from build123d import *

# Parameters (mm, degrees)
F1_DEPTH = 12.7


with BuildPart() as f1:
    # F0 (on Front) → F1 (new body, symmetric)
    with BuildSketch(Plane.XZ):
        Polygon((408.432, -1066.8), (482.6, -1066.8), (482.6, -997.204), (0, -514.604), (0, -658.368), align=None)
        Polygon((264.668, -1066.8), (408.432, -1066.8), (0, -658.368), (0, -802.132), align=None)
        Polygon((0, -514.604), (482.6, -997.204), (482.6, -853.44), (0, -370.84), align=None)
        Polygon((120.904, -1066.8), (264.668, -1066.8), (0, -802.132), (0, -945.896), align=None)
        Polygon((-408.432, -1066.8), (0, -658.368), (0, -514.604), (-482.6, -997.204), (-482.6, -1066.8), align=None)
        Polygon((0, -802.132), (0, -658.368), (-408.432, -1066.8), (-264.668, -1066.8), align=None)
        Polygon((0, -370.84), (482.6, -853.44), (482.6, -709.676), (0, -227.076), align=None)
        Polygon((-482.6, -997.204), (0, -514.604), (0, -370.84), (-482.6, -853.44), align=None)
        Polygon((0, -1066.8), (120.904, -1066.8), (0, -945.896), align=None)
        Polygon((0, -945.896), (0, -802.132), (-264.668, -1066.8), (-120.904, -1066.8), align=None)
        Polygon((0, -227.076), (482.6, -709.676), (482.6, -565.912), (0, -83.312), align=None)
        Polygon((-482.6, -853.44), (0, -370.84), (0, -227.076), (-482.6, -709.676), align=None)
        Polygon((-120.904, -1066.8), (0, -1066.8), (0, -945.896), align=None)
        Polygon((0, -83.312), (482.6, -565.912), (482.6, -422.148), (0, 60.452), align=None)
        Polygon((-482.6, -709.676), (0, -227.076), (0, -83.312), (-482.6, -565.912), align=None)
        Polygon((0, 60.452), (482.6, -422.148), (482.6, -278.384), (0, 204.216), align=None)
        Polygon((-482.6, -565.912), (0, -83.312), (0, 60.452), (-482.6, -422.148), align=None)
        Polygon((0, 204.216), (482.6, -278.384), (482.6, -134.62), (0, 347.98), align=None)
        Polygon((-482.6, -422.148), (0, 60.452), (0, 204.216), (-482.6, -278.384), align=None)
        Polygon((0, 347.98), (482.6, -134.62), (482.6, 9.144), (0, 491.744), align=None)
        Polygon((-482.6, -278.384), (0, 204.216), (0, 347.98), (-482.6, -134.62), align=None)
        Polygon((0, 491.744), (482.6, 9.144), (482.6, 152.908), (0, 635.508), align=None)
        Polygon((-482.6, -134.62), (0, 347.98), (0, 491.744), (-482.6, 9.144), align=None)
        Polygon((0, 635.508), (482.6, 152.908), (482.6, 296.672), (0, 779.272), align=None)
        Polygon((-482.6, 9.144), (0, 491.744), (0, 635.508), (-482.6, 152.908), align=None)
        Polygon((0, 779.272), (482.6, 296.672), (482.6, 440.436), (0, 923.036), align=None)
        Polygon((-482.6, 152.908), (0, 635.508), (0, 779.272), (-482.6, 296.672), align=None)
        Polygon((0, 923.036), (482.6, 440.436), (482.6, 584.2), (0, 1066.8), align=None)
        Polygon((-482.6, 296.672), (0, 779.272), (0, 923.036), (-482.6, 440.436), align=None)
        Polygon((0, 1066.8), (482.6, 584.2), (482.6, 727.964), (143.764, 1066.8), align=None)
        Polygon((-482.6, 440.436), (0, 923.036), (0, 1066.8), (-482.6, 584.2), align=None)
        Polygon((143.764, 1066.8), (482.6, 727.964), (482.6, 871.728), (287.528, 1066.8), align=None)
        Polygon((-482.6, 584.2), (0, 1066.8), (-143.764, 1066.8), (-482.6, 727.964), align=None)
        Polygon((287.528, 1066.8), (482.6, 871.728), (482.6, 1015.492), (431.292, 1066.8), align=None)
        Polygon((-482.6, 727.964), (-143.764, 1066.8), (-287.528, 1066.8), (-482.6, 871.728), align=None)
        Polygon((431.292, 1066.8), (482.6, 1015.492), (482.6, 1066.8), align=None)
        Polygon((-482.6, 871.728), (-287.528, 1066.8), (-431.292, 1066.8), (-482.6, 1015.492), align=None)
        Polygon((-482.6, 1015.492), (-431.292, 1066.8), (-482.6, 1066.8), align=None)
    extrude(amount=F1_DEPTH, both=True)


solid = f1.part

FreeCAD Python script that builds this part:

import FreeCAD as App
import Part
import Sketcher
from FreeCAD import Vector
Q = App.Units.Quantity

doc = App.newDocument("Part")
body = doc.addObject("PartDesign::Body", "Body")

# Sketch on XZ plane
sketch1 = doc.addObject("Sketcher::SketchObject", "Sketch")
body.addObject(sketch1)
sketch1.AttachmentSupport = (doc.XZ_Plane, [""])
sketch1.MapMode = "FlatFace"
sketch1.addGeometry([
    Part.LineSegment(Vector(483, -1067, 0), Vector(483, 1067, 0)),
    Part.LineSegment(Vector(483, 1067, 0), Vector(-483, 1067, 0)),
    Part.LineSegment(Vector(-483, 1067, 0), Vector(-483, -1067, 0)),
    Part.LineSegment(Vector(-483, -1067, 0), Vector(483, -1067, 0)),
], False)
sketch1.addConstraint([
    Sketcher.Constraint("Coincident", 0, 2, 1, 1),
    Sketcher.Constraint("Coincident", 1, 2, 2, 1),
    Sketcher.Constraint("Coincident", 2, 2, 3, 1),
    Sketcher.Constraint("Coincident", 3, 2, 0, 1),
    Sketcher.Constraint("Vertical", 0),
    Sketcher.Constraint("Horizontal", 1),
    Sketcher.Constraint("Vertical", 2),
    Sketcher.Constraint("Horizontal", 3),
    Sketcher.Constraint("Symmetric", 0, 2, 2, 2, -1, 1),
    Sketcher.Constraint("DistanceX", 1, 2, 1, 1, Q("38 in")),
    Sketcher.Constraint("DistanceY", 0, 1, 0, 2, Q("84 in")),
])
pad1 = doc.addObject("PartDesign::Pad", "Pad")
body.addObject(pad1)
pad1.Profile = sketch1
pad1.Length = Q("1 in")
pad1.Midplane = True

doc.recompute()
